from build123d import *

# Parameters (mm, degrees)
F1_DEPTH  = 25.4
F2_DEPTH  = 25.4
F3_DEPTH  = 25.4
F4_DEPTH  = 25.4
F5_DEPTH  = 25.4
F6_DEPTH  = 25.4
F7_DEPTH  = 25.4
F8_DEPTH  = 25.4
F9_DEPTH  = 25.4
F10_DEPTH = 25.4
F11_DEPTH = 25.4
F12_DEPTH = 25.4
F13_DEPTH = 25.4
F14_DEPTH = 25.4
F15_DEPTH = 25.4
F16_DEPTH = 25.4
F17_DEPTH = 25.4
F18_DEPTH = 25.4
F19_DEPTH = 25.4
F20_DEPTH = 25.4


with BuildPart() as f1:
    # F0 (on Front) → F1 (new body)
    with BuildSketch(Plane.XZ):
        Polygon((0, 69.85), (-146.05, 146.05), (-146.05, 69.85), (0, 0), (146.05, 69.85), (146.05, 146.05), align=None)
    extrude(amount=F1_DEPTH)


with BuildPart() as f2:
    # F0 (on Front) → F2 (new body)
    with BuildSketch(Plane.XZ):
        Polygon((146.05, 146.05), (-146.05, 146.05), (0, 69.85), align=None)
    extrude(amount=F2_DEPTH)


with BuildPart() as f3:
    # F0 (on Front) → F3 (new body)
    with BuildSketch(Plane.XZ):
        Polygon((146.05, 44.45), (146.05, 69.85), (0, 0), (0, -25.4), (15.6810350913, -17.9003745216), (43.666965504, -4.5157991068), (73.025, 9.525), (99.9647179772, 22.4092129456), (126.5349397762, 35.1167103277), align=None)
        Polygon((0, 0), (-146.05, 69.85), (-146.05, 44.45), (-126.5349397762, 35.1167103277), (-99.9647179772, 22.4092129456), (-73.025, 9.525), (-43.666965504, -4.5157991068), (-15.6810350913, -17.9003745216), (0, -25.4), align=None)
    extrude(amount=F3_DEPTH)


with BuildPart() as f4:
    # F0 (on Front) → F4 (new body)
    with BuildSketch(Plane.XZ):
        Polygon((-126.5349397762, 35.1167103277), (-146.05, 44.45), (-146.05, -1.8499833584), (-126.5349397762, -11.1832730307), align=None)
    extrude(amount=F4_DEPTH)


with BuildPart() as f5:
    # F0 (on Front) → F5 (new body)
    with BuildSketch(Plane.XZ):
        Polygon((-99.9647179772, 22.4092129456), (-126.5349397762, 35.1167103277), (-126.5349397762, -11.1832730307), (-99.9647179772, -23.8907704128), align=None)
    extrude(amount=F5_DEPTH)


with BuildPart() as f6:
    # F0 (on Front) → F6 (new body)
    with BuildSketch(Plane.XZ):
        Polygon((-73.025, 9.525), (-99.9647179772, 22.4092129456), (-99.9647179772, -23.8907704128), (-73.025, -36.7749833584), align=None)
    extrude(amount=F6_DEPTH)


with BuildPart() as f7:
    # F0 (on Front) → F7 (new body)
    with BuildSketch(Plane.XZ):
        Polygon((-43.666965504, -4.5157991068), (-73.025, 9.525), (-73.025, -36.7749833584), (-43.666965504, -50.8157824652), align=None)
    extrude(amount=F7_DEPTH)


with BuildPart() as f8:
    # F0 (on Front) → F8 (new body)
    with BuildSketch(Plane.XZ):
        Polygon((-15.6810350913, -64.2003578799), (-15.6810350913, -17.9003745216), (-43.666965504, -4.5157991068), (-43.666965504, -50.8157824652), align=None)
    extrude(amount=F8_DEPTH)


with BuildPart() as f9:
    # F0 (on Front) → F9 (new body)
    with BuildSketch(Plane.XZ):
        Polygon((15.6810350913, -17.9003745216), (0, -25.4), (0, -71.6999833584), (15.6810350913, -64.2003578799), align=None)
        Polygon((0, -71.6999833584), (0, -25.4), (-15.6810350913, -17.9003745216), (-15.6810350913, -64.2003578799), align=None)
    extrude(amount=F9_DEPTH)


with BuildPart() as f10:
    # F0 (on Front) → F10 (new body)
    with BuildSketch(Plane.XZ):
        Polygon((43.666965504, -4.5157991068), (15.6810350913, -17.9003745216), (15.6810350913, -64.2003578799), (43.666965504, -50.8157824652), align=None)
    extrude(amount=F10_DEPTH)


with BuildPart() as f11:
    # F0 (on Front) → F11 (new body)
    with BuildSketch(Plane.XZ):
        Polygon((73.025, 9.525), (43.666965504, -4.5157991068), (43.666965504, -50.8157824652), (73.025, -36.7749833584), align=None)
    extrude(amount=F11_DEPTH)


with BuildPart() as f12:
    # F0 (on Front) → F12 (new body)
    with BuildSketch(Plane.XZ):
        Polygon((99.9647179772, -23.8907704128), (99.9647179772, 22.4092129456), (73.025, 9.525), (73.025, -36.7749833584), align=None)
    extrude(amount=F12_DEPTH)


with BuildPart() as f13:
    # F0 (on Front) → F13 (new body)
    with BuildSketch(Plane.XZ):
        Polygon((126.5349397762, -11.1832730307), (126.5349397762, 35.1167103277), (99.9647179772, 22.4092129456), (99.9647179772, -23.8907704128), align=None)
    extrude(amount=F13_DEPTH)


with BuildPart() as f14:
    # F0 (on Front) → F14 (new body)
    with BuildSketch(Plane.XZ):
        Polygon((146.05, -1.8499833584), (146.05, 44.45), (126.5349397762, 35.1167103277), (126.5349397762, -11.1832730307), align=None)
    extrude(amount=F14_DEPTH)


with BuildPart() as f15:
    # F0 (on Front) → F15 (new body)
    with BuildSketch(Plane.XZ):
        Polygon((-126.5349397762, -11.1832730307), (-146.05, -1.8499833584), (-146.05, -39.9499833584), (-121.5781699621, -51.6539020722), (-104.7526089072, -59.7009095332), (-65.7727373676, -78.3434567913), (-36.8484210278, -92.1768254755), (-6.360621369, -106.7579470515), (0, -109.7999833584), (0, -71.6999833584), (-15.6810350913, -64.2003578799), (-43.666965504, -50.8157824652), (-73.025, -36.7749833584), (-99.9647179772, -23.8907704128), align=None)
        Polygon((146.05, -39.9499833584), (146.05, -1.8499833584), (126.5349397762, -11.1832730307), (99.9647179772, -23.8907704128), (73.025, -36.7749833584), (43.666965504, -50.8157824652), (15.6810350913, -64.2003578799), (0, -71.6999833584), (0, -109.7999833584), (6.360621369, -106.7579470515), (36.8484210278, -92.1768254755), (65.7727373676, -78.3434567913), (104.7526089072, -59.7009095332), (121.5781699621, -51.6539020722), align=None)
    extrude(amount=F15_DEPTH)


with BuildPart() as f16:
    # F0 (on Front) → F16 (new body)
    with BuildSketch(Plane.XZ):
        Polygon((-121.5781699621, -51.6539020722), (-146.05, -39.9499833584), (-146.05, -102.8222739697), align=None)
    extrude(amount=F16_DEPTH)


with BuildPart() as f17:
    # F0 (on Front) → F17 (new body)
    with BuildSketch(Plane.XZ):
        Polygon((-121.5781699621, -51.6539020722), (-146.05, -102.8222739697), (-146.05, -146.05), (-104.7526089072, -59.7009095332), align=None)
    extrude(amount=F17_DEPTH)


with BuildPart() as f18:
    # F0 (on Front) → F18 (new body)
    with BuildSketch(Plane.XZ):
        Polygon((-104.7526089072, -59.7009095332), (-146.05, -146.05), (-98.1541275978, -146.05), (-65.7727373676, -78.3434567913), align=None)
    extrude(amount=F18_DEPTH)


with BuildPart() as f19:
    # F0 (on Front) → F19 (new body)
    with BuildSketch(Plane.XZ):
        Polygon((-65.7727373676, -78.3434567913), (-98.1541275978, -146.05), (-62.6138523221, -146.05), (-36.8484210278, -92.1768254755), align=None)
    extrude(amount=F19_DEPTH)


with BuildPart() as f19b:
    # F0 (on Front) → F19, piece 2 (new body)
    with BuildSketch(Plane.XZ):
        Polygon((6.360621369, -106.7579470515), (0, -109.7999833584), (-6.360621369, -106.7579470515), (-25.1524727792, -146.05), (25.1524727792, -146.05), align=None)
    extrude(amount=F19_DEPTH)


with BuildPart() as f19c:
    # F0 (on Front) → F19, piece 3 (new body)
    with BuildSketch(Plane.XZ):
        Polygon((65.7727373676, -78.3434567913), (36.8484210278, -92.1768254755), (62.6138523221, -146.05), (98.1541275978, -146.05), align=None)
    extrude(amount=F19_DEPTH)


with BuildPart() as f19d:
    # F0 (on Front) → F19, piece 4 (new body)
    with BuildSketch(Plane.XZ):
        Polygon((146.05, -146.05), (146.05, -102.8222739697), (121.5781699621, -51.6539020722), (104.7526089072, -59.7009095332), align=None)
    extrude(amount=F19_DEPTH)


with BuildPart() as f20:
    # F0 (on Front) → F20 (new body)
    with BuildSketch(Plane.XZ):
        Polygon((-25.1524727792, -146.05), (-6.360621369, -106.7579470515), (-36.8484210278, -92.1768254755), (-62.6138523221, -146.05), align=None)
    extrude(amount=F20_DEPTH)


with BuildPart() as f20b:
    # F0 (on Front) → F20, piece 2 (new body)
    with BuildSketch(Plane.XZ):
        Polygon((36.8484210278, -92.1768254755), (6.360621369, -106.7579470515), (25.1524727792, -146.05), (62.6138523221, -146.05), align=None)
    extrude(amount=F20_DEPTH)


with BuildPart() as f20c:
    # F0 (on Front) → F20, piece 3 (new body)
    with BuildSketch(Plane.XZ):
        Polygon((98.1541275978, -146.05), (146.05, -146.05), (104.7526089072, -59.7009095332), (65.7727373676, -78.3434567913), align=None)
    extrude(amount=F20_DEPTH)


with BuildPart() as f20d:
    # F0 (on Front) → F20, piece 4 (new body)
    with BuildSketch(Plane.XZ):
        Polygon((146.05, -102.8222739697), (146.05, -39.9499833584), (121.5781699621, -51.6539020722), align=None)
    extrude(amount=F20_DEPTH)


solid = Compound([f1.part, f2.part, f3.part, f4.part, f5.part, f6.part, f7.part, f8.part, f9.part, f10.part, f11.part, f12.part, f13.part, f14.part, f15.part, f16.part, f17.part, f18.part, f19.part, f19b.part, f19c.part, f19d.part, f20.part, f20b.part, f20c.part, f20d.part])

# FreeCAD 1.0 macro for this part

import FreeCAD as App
import Part
import Sketcher

V = App.Vector
Q = App.Units.Quantity

doc = App.newDocument("Part")
body = doc.addObject("PartDesign::Body", "Body")

# Sketch on XZ plane
sketch1 = body.newObject("Sketcher::SketchObject", "Sketch")
sketch1.AttachmentSupport = (doc.getObject("XZ_Plane"), [""])
sketch1.MapMode = "FlatFace"
sketch1.addGeometry([
    Part.LineSegment(V(0, 70, 0), V(-146, 146, 0)),  # 0
    Part.LineSegment(V(-146, 146, 0), V(-146, 70, 0)),  # 1
    Part.LineSegment(V(-146, 70, 0), V(0, 0, 0)),  # 2
    Part.LineSegment(V(0, 0, 0), V(146, 70, 0)),  # 3
    Part.LineSegment(V(146, 70, 0), V(146, 146, 0)),  # 4
    Part.LineSegment(V(146, 146, 0), V(0, 70, 0)),  # 5
], False)
sketch1.addConstraint([
    Sketcher.Constraint("Coincident", 0, 2, 1, 1),
    Sketcher.Constraint("Coincident", 1, 2, 2, 1),
    Sketcher.Constraint("Coincident", 2, 2, 3, 1),
    Sketcher.Constraint("Coincident", 3, 2, 4, 1),
    Sketcher.Constraint("Coincident", 4, 2, 5, 1),
    Sketcher.Constraint("Coincident", 5, 2, 0, 1),
    Sketcher.Constraint("Vertical", 1),
    Sketcher.Constraint("Vertical", 4),
    Sketcher.Constraint("Coincident", 2, 2, -1, 1),
    Sketcher.Constraint("Symmetric", 1, 2, 3, 2, -2),
    Sketcher.Constraint("PointOnObject", 5, 2, -2),
    Sketcher.Constraint("Horizontal", 0, 2, 4, 2),
    Sketcher.Constraint("Horizontal", 3, 2, 5, 2),
    Sketcher.Constraint("DistanceY", 1, 2, 1, 1, Q("3 in")),
    Sketcher.Constraint("DistanceX", 1, 2, 3, 2, Q("11.5 in")),
    Sketcher.Constraint("DistanceY", -1, 1, 0, 2, Q("5.75 in")),
])
pad1 = body.newObject("PartDesign::Pad", "Pad")
pad1.Profile = sketch1
pad1.Length = Q("1 in")
body2 = doc.addObject("PartDesign::Body", "Body001")

# Sketch on XZ plane
sketch2 = body2.newObject("Sketcher::SketchObject", "Sketch001")
sketch2.AttachmentSupport = (doc.getObject("XZ_Plane001"), [""])
sketch2.MapMode = "FlatFace"
sketch2.addGeometry([
    Part.LineSegment(V(146, 146, 0), V(-146, 146, 0)),
    Part.LineSegment(V(-146, 146, 0), V(0, 70, 0)),
    Part.LineSegment(V(0, 70, 0), V(146, 146, 0)),
], False)
sketch2.addConstraint([
    Sketcher.Constraint("Coincident", 0, 2, 1, 1),
    Sketcher.Constraint("Coincident", 1, 2, 2, 1),
    Sketcher.Constraint("Coincident", 2, 2, 0, 1),
    Sketcher.Constraint("Horizontal", 0),
    Sketcher.Constraint("PointOnObject", 1, 2, -2),
    Sketcher.Constraint("Equal", 1, 2),
    Sketcher.Constraint("DistanceX", 0, 2, 0, 1, Q("11.5 in")),
    Sketcher.Constraint("DistanceY", 1, 2, 0, 2, Q("3 in")),
    Sketcher.Constraint("DistanceY", -1, 1, 0, 2, Q("5.75 in")),
])
pad2 = body2.newObject("PartDesign::Pad", "Pad001")
pad2.Profile = sketch2
pad2.Length = Q("1 in")
body3 = doc.addObject("PartDesign::Body", "Body002")

# Sketch on XZ plane
sketch3 = body3.newObject("Sketcher::SketchObject", "Sketch002")
sketch3.AttachmentSupport = (doc.getObject("XZ_Plane002"), [""])
sketch3.MapMode = "FlatFace"
sketch3.addGeometry([
    Part.LineSegment(V(146, 44, 0), V(146, 70, 0)),  # 0
    Part.LineSegment(V(146, 70, 0), V(0, 0, 0)),  # 1
    Part.LineSegment(V(0, 0, 0), V(-146, 70, 0)),  # 2
    Part.LineSegment(V(-146, 70, 0), V(-146, 44, 0)),  # 3
    Part.LineSegment(V(-146, 44, 0), V(-127, 35, 0)),  # 4
    Part.LineSegment(V(-127, 35, 0), V(-73, 10, 0)),  # 5
    Part.LineSegment(V(-73, 10, 0), V(-16, -18, 0)),  # 6
    Part.LineSegment(V(-16, -18, 0), V(0, -25, 0)),  # 7
    Part.LineSegment(V(0, -25, 0), V(16, -18, 0)),  # 8
    Part.LineSegment(V(16, -18, 0), V(73, 10, 0)),  # 9
    Part.LineSegment(V(73, 10, 0), V(127, 35, 0)),  # 10
    Part.LineSegment(V(127, 35, 0), V(146, 44, 0)),  # 11
], False)
sketch3.addConstraint([
    Sketcher.Constraint("Coincident", 0, 2, 1, 1),
    Sketcher.Constraint("Coincident", 1, 2, 2, 1),
    Sketcher.Constraint("Coincident", 2, 2, 3, 1),
    Sketcher.Constraint("Coincident", 3, 2, 4, 1),
    Sketcher.Constraint("Coincident", 4, 2, 5, 1),
    Sketcher.Constraint("Coincident", 5, 2, 6, 1),
    Sketcher.Constraint("Coincident", 6, 2, 7, 1),
    Sketcher.Constraint("Coincident", 7, 2, 8, 1),
    Sketcher.Constraint("Coincident", 8, 2, 9, 1),
    Sketcher.Constraint("Coincident", 9, 2, 10, 1),
    Sketcher.Constraint("Coincident", 10, 2, 11, 1),
    Sketcher.Constraint("Coincident", 11, 2, 0, 1),
    Sketcher.Constraint("Vertical", 0),
    Sketcher.Constraint("Vertical", 3),
    Sketcher.Constraint("Coincident", 1, 2, -1, 1),
    Sketcher.Constraint("Symmetric", 0, 2, 2, 2, -2),
    Sketcher.Constraint("Symmetric", 6, 2, 8, 2, -2),
    Sketcher.Constraint("Symmetric", 5, 2, 9, 2, -2),
    Sketcher.Constraint("Symmetric", 4, 2, 10, 2, -2),
    Sketcher.Constraint("PointOnObject", 7, 2, -2),
    Sketcher.Constraint("Parallel", 2, 4),
    Sketcher.Constraint("Parallel", 4, 5),
    Sketcher.Constraint("Parallel", 5, 6),
    Sketcher.Constraint("Parallel", 6, 7),
    Sketcher.Constraint("Parallel", 10, 11),
    Sketcher.Constraint("DistanceY", 0, 1, 0, 2, Q("1 in")),
    Sketcher.Constraint("DistanceX", 2, 2, 0, 2, Q("11.5 in")),
    Sketcher.Constraint("DistanceY", -1, 1, 0, 2, Q("2.75 in")),
    Sketcher.Constraint("DistanceX", 5, 2, -1, 1, Q("2.875 in")),
    Sketcher.Constraint("Distance", 5, Q("59.314832 mm")),
    Sketcher.Constraint("Distance", 6, Q("63.564782 mm")),
])
pad3 = body3.newObject("PartDesign::Pad", "Pad002")
pad3.Profile = sketch3
pad3.Length = Q("1 in")
body4 = doc.addObject("PartDesign::Body", "Body003")

# Sketch on XZ plane
sketch4 = body4.newObject("Sketcher::SketchObject", "Sketch003")
sketch4.AttachmentSupport = (doc.getObject("XZ_Plane003"), [""])
sketch4.MapMode = "FlatFace"
sketch4.addGeometry([
    Part.LineSegment(V(-127, 35, 0), V(-146, 44, 0)),
    Part.LineSegment(V(-146, 44, 0), V(-146, -2, 0)),
    Part.LineSegment(V(-146, -2, 0), V(-127, -11, 0)),
    Part.LineSegment(V(-127, -11, 0), V(-127, 35, 0)),
], False)
sketch4.addConstraint([
    Sketcher.Constraint("Coincident", 0, 2, 1, 1),
    Sketcher.Constraint("Coincident", 1, 2, 2, 1),
    Sketcher.Constraint("Coincident", 2, 2, 3, 1),
    Sketcher.Constraint("Coincident", 3, 2, 0, 1),
    Sketcher.Constraint("Vertical", 1),
    Sketcher.Constraint("Vertical", 3),
    Sketcher.Constraint("Parallel", 0, 2),
    Sketcher.Constraint("DistanceX", 0, 2, -1, 1, Q("5.75 in")),
    Sketcher.Constraint("DistanceY", -1, 1, 0, 2, Q("1.75 in")),
    Sketcher.Constraint("DistanceY", 1, 2, 1, 1, Q("46.299983 mm")),
    Sketcher.Constraint("DistanceX", 2, 2, -1, 1, Q("126.53494 mm")),
    Sketcher.Constraint("DistanceY", -1, 1, 3, 2, Q("35.11671 mm")),
])
pad4 = body4.newObject("PartDesign::Pad", "Pad003")
pad4.Profile = sketch4
pad4.Length = Q("1 in")
body5 = doc.addObject("PartDesign::Body", "Body004")

# Sketch on XZ plane
sketch5 = body5.newObject("Sketcher::SketchObject", "Sketch004")
sketch5.AttachmentSupport = (doc.getObject("XZ_Plane004"), [""])
sketch5.MapMode = "FlatFace"
sketch5.addGeometry([
    Part.LineSegment(V(-100, 22, 0), V(-127, 35, 0)),
    Part.LineSegment(V(-127, 35, 0), V(-127, -11, 0)),
    Part.LineSegment(V(-127, -11, 0), V(-100, -24, 0)),
    Part.LineSegment(V(-100, -24, 0), V(-100, 22, 0)),
], False)
sketch5.addConstraint([
    Sketcher.Constraint("Coincident", 0, 2, 1, 1),
    Sketcher.Constraint("Coincident", 1, 2, 2, 1),
    Sketcher.Constraint("Coincident", 2, 2, 3, 1),
    Sketcher.Constraint("Coincident", 3, 2, 0, 1),
    Sketcher.Constraint("Vertical", 1),
    Sketcher.Constraint("Vertical", 3),
    Sketcher.Constraint("Parallel", 0, 2),
    Sketcher.Constraint("DistanceY", 1, 2, 1, 1, Q("46.299983 mm")),
    Sketcher.Constraint("DistanceX", 0, 2, -1, 1, Q("126.53494 mm")),
    Sketcher.Constraint("DistanceY", -1, 1, 0, 2, Q("35.11671 mm")),
    Sketcher.Constraint("DistanceY", 2, 2, -1, 1, Q("23.89077 mm")),
    Sketcher.Constraint("DistanceX", 1, 2, 2, 2, Q("26.570222 mm")),
])
pad5 = body5.newObject("PartDesign::Pad", "Pad004")
pad5.Profile = sketch5
pad5.Length = Q("1 in")
body6 = doc.addObject("PartDesign::Body", "Body005")

# Sketch on XZ plane
sketch6 = body6.newObject("Sketcher::SketchObject", "Sketch005")
sketch6.AttachmentSupport = (doc.getObject("XZ_Plane005"), [""])
sketch6.MapMode = "FlatFace"
sketch6.addGeometry([
    Part.LineSegment(V(-73, 10, 0), V(-100, 22, 0)),
    Part.LineSegment(V(-100, 22, 0), V(-100, -24, 0)),
    Part.LineSegment(V(-100, -24, 0), V(-73, -37, 0)),
    Part.LineSegment(V(-73, -37, 0), V(-73, 10, 0)),
], False)
sketch6.addConstraint([
    Sketcher.Constraint("Coincident", 0, 2, 1, 1),
    Sketcher.Constraint("Coincident", 1, 2, 2, 1),
    Sketcher.Constraint("Coincident", 2, 2, 3, 1),
    Sketcher.Constraint("Coincident", 3, 2, 0, 1),
    Sketcher.Constraint("Vertical", 1),
    Sketcher.Constraint("Vertical", 3),
    Sketcher.Constraint("Parallel", 0, 2),
    Sketcher.Constraint("DistanceX", 2, 2, -1, 1, Q("2.875 in")),
    Sketcher.Constraint("DistanceY", -1, 1, 3, 2, Q("0.375 in")),
    Sketcher.Constraint("DistanceY", 1, 2, 1, 1, Q("46.299983 mm")),
    Sketcher.Constraint("DistanceY", 1, 2, -1, 1, Q("23.89077 mm")),
    Sketcher.Constraint("Distance", 0, Q("29.862206 mm")),
])
pad6 = body6.newObject("PartDesign::Pad", "Pad005")
pad6.Profile = sketch6
pad6.Length = Q("1 in")
body7 = doc.addObject("PartDesign::Body", "Body006")

# Sketch on XZ plane
sketch7 = body7.newObject("Sketcher::SketchObject", "Sketch006")
sketch7.AttachmentSupport = (doc.getObject("XZ_Plane006"), [""])
sketch7.MapMode = "FlatFace"
sketch7.addGeometry([
    Part.LineSegment(V(-44, -5, 0), V(-73, 10, 0)),
    Part.LineSegment(V(-73, 10, 0), V(-73, -37, 0)),
    Part.LineSegment(V(-73, -37, 0), V(-44, -51, 0)),
    Part.LineSegment(V(-44, -51, 0), V(-44, -5, 0)),
], False)
sketch7.addConstraint([
    Sketcher.Constraint("Coincident", 0, 2, 1, 1),
    Sketcher.Constraint("Coincident", 1, 2, 2, 1),
    Sketcher.Constraint("Coincident", 2, 2, 3, 1),
    Sketcher.Constraint("Coincident", 3, 2, 0, 1),
    Sketcher.Constraint("Vertical", 1),
    Sketcher.Constraint("Vertical", 3),
    Sketcher.Constraint("Parallel", 0, 2),
    Sketcher.Constraint("DistanceX", 0, 2, -1, 1, Q("2.875 in")),
    Sketcher.Constraint("DistanceY", -1, 1, 0, 2, Q("0.375 in")),
    Sketcher.Constraint("DistanceY", 3, 2, -1, 1, Q("4.515799 mm")),
    Sketcher.Constraint("DistanceY", 1, 2, 1, 1, Q("46.299983 mm")),
    Sketcher.Constraint("Distance", 0, Q("32.542868 mm")),
])
pad7 = body7.newObject("PartDesign::Pad", "Pad006")
pad7.Profile = sketch7
pad7.Length = Q("1 in")
body8 = doc.addObject("PartDesign::Body", "Body007")

# Sketch on XZ plane
sketch8 = body8.newObject("Sketcher::SketchObject", "Sketch007")
sketch8.AttachmentSupport = (doc.getObject("XZ_Plane007"), [""])
sketch8.MapMode = "FlatFace"
sketch8.addGeometry([
    Part.LineSegment(V(-16, -64, 0), V(-16, -18, 0)),
    Part.LineSegment(V(-16, -18, 0), V(-44, -5, 0)),
    Part.LineSegment(V(-44, -5, 0), V(-44, -51, 0)),
    Part.LineSegment(V(-44, -51, 0), V(-16, -64, 0)),
], False)
sketch8.addConstraint([
    Sketcher.Constraint("Coincident", 0, 2, 1, 1),
    Sketcher.Constraint("Coincident", 1, 2, 2, 1),
    Sketcher.Constraint("Coincident", 2, 2, 3, 1),
    Sketcher.Constraint("Coincident", 3, 2, 0, 1),
    Sketcher.Constraint("Vertical", 0),
    Sketcher.Constraint("Vertical", 2),
    Sketcher.Constraint("Parallel", 1, 3),
    Sketcher.Constraint("DistanceY", 1, 2, -1, 1, Q("4.515799 mm")),
    Sketcher.Constraint("DistanceY", 0, 1, 0, 2, Q("46.299983 mm")),
    Sketcher.Constraint("DistanceX", 1, 2, 0, 2, Q("27.98593 mm")),
    Sketcher.Constraint("DistanceY", 3, 2, 1, 2, Q("59.684559 mm")),
    Sketcher.Constraint("DistanceX", 0, 2, -1, 1, Q("15.681035 mm")),
])
pad8 = body8.newObject("PartDesign::Pad", "Pad007")
pad8.Profile = sketch8
pad8.Length = Q("1 in")
body9 = doc.addObject("PartDesign::Body", "Body008")

# Sketch on XZ plane
sketch9 = body9.newObject("Sketcher::SketchObject", "Sketch008")
sketch9.AttachmentSupport = (doc.getObject("XZ_Plane008"), [""])
sketch9.MapMode = "FlatFace"
sketch9.addGeometry([
    Part.LineSegment(V(16, -18, 0), V(0, -25, 0)),  # 0
    Part.LineSegment(V(0, -25, 0), V(-16, -18, 0)),  # 1
    Part.LineSegment(V(-16, -18, 0), V(-16, -64, 0)),  # 2
    Part.LineSegment(V(-16, -64, 0), V(0, -72, 0)),  # 3
    Part.LineSegment(V(0, -72, 0), V(16, -64, 0)),  # 4
    Part.LineSegment(V(16, -64, 0), V(16, -18, 0)),  # 5
], False)
sketch9.addConstraint([
    Sketcher.Constraint("Coincident", 0, 2, 1, 1),
    Sketcher.Constraint("Coincident", 1, 2, 2, 1),
    Sketcher.Constraint("Coincident", 2, 2, 3, 1),
    Sketcher.Constraint("Coincident", 3, 2, 4, 1),
    Sketcher.Constraint("Coincident", 4, 2, 5, 1),
    Sketcher.Constraint("Coincident", 5, 2, 0, 1),
    Sketcher.Constraint("Vertical", 2),
    Sketcher.Constraint("Vertical", 5),
    Sketcher.Constraint("Symmetric", 2, 2, 4, 2, -2),
    Sketcher.Constraint("PointOnObject", 0, 2, -2),
    Sketcher.Constraint("PointOnObject", 3, 2, -2),
    Sketcher.Constraint("Parallel", 1, 3),
    Sketcher.Constraint("Parallel", 0, 4),
    Sketcher.Constraint("DistanceY", 0, 2, -1, 1, Q("1 in")),
    Sketcher.Constraint("DistanceY", 2, 2, 2, 1, Q("46.299983 mm")),
    Sketcher.Constraint("DistanceY", 3, 2, 1, 2, Q("53.799609 mm")),
    Sketcher.Constraint("DistanceX", 2, 2, 4, 2, Q("31.36207 mm")),
])
pad9 = body9.newObject("PartDesign::Pad", "Pad008")
pad9.Profile = sketch9
pad9.Length = Q("1 in")
body10 = doc.addObject("PartDesign::Body", "Body009")

# Sketch on XZ plane
sketch10 = body10.newObject("Sketcher::SketchObject", "Sketch009")
sketch10.AttachmentSupport = (doc.getObject("XZ_Plane009"), [""])
sketch10.MapMode = "FlatFace"
sketch10.addGeometry([
    Part.LineSegment(V(44, -5, 0), V(16, -18, 0)),
    Part.LineSegment(V(16, -18, 0), V(16, -64, 0)),
    Part.LineSegment(V(16, -64, 0), V(44, -51, 0)),
    Part.LineSegment(V(44, -51, 0), V(44, -5, 0)),
], False)
sketch10.addConstraint([
    Sketcher.Constraint("Coincident", 0, 2, 1, 1),
    Sketcher.Constraint("Coincident", 1, 2, 2, 1),
    Sketcher.Constraint("Coincident", 2, 2, 3, 1),
    Sketcher.Constraint("Coincident", 3, 2, 0, 1),
    Sketcher.Constraint("Vertical", 1),
    Sketcher.Constraint("Vertical", 3),
    Sketcher.Constraint("Parallel", 0, 2),
    Sketcher.Constraint("DistanceY", 3, 2, -1, 1, Q("4.515799 mm")),
    Sketcher.Constraint("DistanceY", 1, 2, 1, 1, Q("46.299983 mm")),
    Sketcher.Constraint("DistanceX", 1, 2, 2, 2, Q("27.98593 mm")),
    Sketcher.Constraint("DistanceY", 1, 2, 3, 2, Q("59.684559 mm")),
    Sketcher.Constraint("DistanceX", -1, 1, 0, 2, Q("15.681035 mm")),
])
pad10 = body10.newObject("PartDesign::Pad", "Pad009")
pad10.Profile = sketch10
pad10.Length = Q("1 in")
body11 = doc.addObject("PartDesign::Body", "Body010")

# Sketch on XZ plane
sketch11 = body11.newObject("Sketcher::SketchObject", "Sketch010")
sketch11.AttachmentSupport = (doc.getObject("XZ_Plane010"), [""])
sketch11.MapMode = "FlatFace"
sketch11.addGeometry([
    Part.LineSegment(V(73, 10, 0), V(44, -5, 0)),
    Part.LineSegment(V(44, -5, 0), V(44, -51, 0)),
    Part.LineSegment(V(44, -51, 0), V(73, -37, 0)),
    Part.LineSegment(V(73, -37, 0), V(73, 10, 0)),
], False)
sketch11.addConstraint([
    Sketcher.Constraint("Coincident", 0, 2, 1, 1),
    Sketcher.Constraint("Coincident", 1, 2, 2, 1),
    Sketcher.Constraint("Coincident", 2, 2, 3, 1),
    Sketcher.Constraint("Coincident", 3, 2, 0, 1),
    Sketcher.Constraint("Vertical", 1),
    Sketcher.Constraint("Vertical", 3),
    Sketcher.Constraint("Parallel", 0, 2),
    Sketcher.Constraint("DistanceX", -1, 1, 2, 2, Q("2.875 in")),
    Sketcher.Constraint("DistanceY", -1, 1, 3, 2, Q("0.375 in")),
    Sketcher.Constraint("DistanceY", 0, 2, -1, 1, Q("4.515799 mm")),
    Sketcher.Constraint("DistanceY", 1, 2, 1, 1, Q("46.299983 mm")),
    Sketcher.Constraint("Distance", 0, Q("32.542868 mm")),
])
pad11 = body11.newObject("PartDesign::Pad", "Pad010")
pad11.Profile = sketch11
pad11.Length = Q("1 in")
body12 = doc.addObject("PartDesign::Body", "Body011")

# Sketch on XZ plane
sketch12 = body12.newObject("Sketcher::SketchObject", "Sketch011")
sketch12.AttachmentSupport = (doc.getObject("XZ_Plane011"), [""])
sketch12.MapMode = "FlatFace"
sketch12.addGeometry([
    Part.LineSegment(V(100, -24, 0), V(100, 22, 0)),
    Part.LineSegment(V(100, 22, 0), V(73, 10, 0)),
    Part.LineSegment(V(73, 10, 0), V(73, -37, 0)),
    Part.LineSegment(V(73, -37, 0), V(100, -24, 0)),
], False)
sketch12.addConstraint([
    Sketcher.Constraint("Coincident", 0, 2, 1, 1),
    Sketcher.Constraint("Coincident", 1, 2, 2, 1),
    Sketcher.Constraint("Coincident", 2, 2, 3, 1),
    Sketcher.Constraint("Coincident", 3, 2, 0, 1),
    Sketcher.Constraint("Vertical", 0),
    Sketcher.Constraint("Vertical", 2),
    Sketcher.Constraint("Parallel", 1, 3),
    Sketcher.Constraint("DistanceX", -1, 1, 1, 2, Q("2.875 in")),
    Sketcher.Constraint("DistanceY", -1, 1, 1, 2, Q("0.375 in")),
    Sketcher.Constraint("DistanceY", 0, 1, 0, 2, Q("46.299983 mm")),
    Sketcher.Constraint("DistanceY", 3, 2, -1, 1, Q("23.89077 mm")),
    Sketcher.Constraint("Distance", 1, Q("29.862206 mm")),
])
pad12 = body12.newObject("PartDesign::Pad", "Pad011")
pad12.Profile = sketch12
pad12.Length = Q("1 in")
body13 = doc.addObject("PartDesign::Body", "Body012")

# Sketch on XZ plane
sketch13 = body13.newObject("Sketcher::SketchObject", "Sketch012")
sketch13.AttachmentSupport = (doc.getObject("XZ_Plane012"), [""])
sketch13.MapMode = "FlatFace"
sketch13.addGeometry([
    Part.LineSegment(V(127, -11, 0), V(127, 35, 0)),
    Part.LineSegment(V(127, 35, 0), V(100, 22, 0)),
    Part.LineSegment(V(100, 22, 0), V(100, -24, 0)),
    Part.LineSegment(V(100, -24, 0), V(127, -11, 0)),
], False)
sketch13.addConstraint([
    Sketcher.Constraint("Coincident", 0, 2, 1, 1),
    Sketcher.Constraint("Coincident", 1, 2, 2, 1),
    Sketcher.Constraint("Coincident", 2, 2, 3, 1),
    Sketcher.Constraint("Coincident", 3, 2, 0, 1),
    Sketcher.Constraint("Vertical", 0),
    Sketcher.Constraint("Vertical", 2),
    Sketcher.Constraint("Parallel", 1, 3),
    Sketcher.Constraint("DistanceY", 0, 1, 0, 2, Q("46.299983 mm")),
    Sketcher.Constraint("DistanceX", -1, 1, 0, 2, Q("126.53494 mm")),
    Sketcher.Constraint("DistanceY", -1, 1, 0, 2, Q("35.11671 mm")),
    Sketcher.Constraint("DistanceY", 2, 2, -1, 1, Q("23.89077 mm")),
    Sketcher.Constraint("DistanceX", 1, 2, 0, 2, Q("26.570222 mm")),
])
pad13 = body13.newObject("PartDesign::Pad", "Pad012")
pad13.Profile = sketch13
pad13.Length = Q("1 in")
body14 = doc.addObject("PartDesign::Body", "Body013")

# Sketch on XZ plane
sketch14 = body14.newObject("Sketcher::SketchObject", "Sketch013")
sketch14.AttachmentSupport = (doc.getObject("XZ_Plane013"), [""])
sketch14.MapMode = "FlatFace"
sketch14.addGeometry([
    Part.LineSegment(V(146, -2, 0), V(146, 44, 0)),
    Part.LineSegment(V(146, 44, 0), V(127, 35, 0)),
    Part.LineSegment(V(127, 35, 0), V(127, -11, 0)),
    Part.LineSegment(V(127, -11, 0), V(146, -2, 0)),
], False)
sketch14.addConstraint([
    Sketcher.Constraint("Coincident", 0, 2, 1, 1),
    Sketcher.Constraint("Coincident", 1, 2, 2, 1),
    Sketcher.Constraint("Coincident", 2, 2, 3, 1),
    Sketcher.Constraint("Coincident", 3, 2, 0, 1),
    Sketcher.Constraint("Vertical", 0),
    Sketcher.Constraint("Vertical", 2),
    Sketcher.Constraint("Parallel", 1, 3),
    Sketcher.Constraint("DistanceX", -1, 1, 0, 2, Q("5.75 in")),
    Sketcher.Constraint("DistanceY", -1, 1, 0, 2, Q("1.75 in")),
    Sketcher.Constraint("DistanceY", 0, 1, 0, 2, Q("46.299983 mm")),
    Sketcher.Constraint("DistanceX", -1, 1, 1, 2, Q("126.53494 mm")),
    Sketcher.Constraint("DistanceY", -1, 1, 1, 2, Q("35.11671 mm")),
])
pad14 = body14.newObject("PartDesign::Pad", "Pad013")
pad14.Profile = sketch14
pad14.Length = Q("1 in")
body15 = doc.addObject("PartDesign::Body", "Body014")

# Sketch on XZ plane
sketch15 = body15.newObject("Sketcher::SketchObject", "Sketch014")
sketch15.AttachmentSupport = (doc.getObject("XZ_Plane014"), [""])
sketch15.MapMode = "FlatFace"
sketch15.addGeometry([
    Part.LineSegment(V(-127, -11, 0), V(-146, -2, 0)),  # 0
    Part.LineSegment(V(-146, -2, 0), V(-146, -40, 0)),  # 1
    Part.LineSegment(V(-146, -40, 0), V(-122, -52, 0)),  # 2
    Part.LineSegment(V(-122, -52, 0), V(-105, -60, 0)),  # 3
    Part.LineSegment(V(-105, -60, 0), V(-66, -78, 0)),  # 4
    Part.LineSegment(V(-66, -78, 0), V(-37, -92, 0)),  # 5
    Part.LineSegment(V(-37, -92, 0), V(-6, -107, 0)),  # 6
    Part.LineSegment(V(-6, -107, 0), V(0, -110, 0)),  # 7
    Part.LineSegment(V(0, -110, 0), V(6, -107, 0)),  # 8
    Part.LineSegment(V(6, -107, 0), V(37, -92, 0)),  # 9
    Part.LineSegment(V(37, -92, 0), V(66, -78, 0)),  # 10
    Part.LineSegment(V(66, -78, 0), V(105, -60, 0)),  # 11
    Part.LineSegment(V(105, -60, 0), V(122, -52, 0)),  # 12
    Part.LineSegment(V(122, -52, 0), V(146, -40, 0)),  # 13
    Part.LineSegment(V(146, -40, 0), V(146, -2, 0)),  # 14
    Part.LineSegment(V(146, -2, 0), V(127, -11, 0)),  # 15
    Part.LineSegment(V(127, -11, 0), V(73, -37, 0)),  # 16
    Part.LineSegment(V(73, -37, 0), V(44, -51, 0)),  # 17
    Part.LineSegment(V(44, -51, 0), V(16, -64, 0)),  # 18
    Part.LineSegment(V(16, -64, 0), V(0, -72, 0)),  # 19
    Part.LineSegment(V(0, -72, 0), V(-16, -64, 0)),  # 20
    Part.LineSegment(V(-16, -64, 0), V(-44, -51, 0)),  # 21
    Part.LineSegment(V(-44, -51, 0), V(-73, -37, 0)),  # 22
    Part.LineSegment(V(-73, -37, 0), V(-127, -11, 0)),  # 23
], False)
sketch15.addConstraint([
    Sketcher.Constraint("Coincident", 0, 2, 1, 1),
    Sketcher.Constraint("Coincident", 1, 2, 2, 1),
    Sketcher.Constraint("Coincident", 2, 2, 3, 1),
    Sketcher.Constraint("Coincident", 3, 2, 4, 1),
    Sketcher.Constraint("Coincident", 4, 2, 5, 1),
    Sketcher.Constraint("Coincident", 5, 2, 6, 1),
    Sketcher.Constraint("Coincident", 6, 2, 7, 1),
    Sketcher.Constraint("Coincident", 7, 2, 8, 1),
    Sketcher.Constraint("Coincident", 8, 2, 9, 1),
    Sketcher.Constraint("Coincident", 9, 2, 10, 1),
    Sketcher.Constraint("Coincident", 10, 2, 11, 1),
    Sketcher.Constraint("Coincident", 11, 2, 12, 1),
    Sketcher.Constraint("Coincident", 12, 2, 13, 1),
    Sketcher.Constraint("Coincident", 13, 2, 14, 1),
    Sketcher.Constraint("Coincident", 14, 2, 15, 1),
    Sketcher.Constraint("Coincident", 15, 2, 16, 1),
    Sketcher.Constraint("Coincident", 16, 2, 17, 1),
    Sketcher.Constraint("Coincident", 17, 2, 18, 1),
    Sketcher.Constraint("Coincident", 18, 2, 19, 1),
    Sketcher.Constraint("Coincident", 19, 2, 20, 1),
    Sketcher.Constraint("Coincident", 20, 2, 21, 1),
    Sketcher.Constraint("Coincident", 21, 2, 22, 1),
    Sketcher.Constraint("Coincident", 22, 2, 23, 1),
    Sketcher.Constraint("Coincident", 23, 2, 0, 1),
    Sketcher.Constraint("Vertical", 1),
    Sketcher.Constraint("Vertical", 14),
    Sketcher.Constraint("Symmetric", 6, 2, 8, 2, -2),
    Sketcher.Constraint("Symmetric", 5, 2, 9, 2, -2),
    Sketcher.Constraint("Symmetric", 4, 2, 10, 2, -2),
    Sketcher.Constraint("Symmetric", 3, 2, 11, 2, -2),
    Sketcher.Constraint("Symmetric", 2, 2, 12, 2, -2),
    Sketcher.Constraint("Symmetric", 1, 2, 13, 2, -2),
    Sketcher.Constraint("Symmetric", 18, 2, 20, 2, -2),
    Sketcher.Constraint("Symmetric", 17, 2, 21, 2, -2),
    Sketcher.Constraint("Symmetric", 16, 2, 22, 2, -2),
    Sketcher.Constraint("Symmetric", 15, 2, 23, 2, -2),
    Sketcher.Constraint("PointOnObject", 7, 2, -2),
    Sketcher.Constraint("PointOnObject", 19, 2, -2),
    Sketcher.Constraint("Parallel", 0, 2),
    Sketcher.Constraint("Parallel", 2, 3),
    Sketcher.Constraint("Parallel", 3, 4),
    Sketcher.Constraint("Parallel", 4, 5),
    Sketcher.Constraint("Parallel", 5, 6),
    Sketcher.Constraint("Parallel", 6, 7),
    Sketcher.Constraint("Parallel", 13, 15),
    Sketcher.Constraint("Parallel", 15, 16),
    Sketcher.Constraint("Parallel", 16, 17),
    Sketcher.Constraint("Parallel", 17, 18),
    Sketcher.Constraint("Parallel", 18, 19),
    Sketcher.Constraint("DistanceY", 1, 2, 1, 1, Q("1.5 in")),
    Sketcher.Constraint("DistanceX", 0, 2, -1, 1, Q("5.75 in")),
    Sketcher.Constraint("DistanceX", -1, 1, 16, 2, Q("2.875 in")),
    Sketcher.Constraint("Distance", 5, Q("32.062099 mm")),
    Sketcher.Constraint("DistanceX", 5, 2, 6, 2, Q("30.4878 mm")),
    Sketcher.Constraint("DistanceY", 17, 2, 16, 2, Q("14.040799 mm")),
    Sketcher.Constraint("DistanceY", 19, 2, 21, 2, Q("20.884201 mm")),
    Sketcher.Constraint("DistanceX", 21, 2, 18, 2, Q("59.348001 mm")),
    Sketcher.Constraint("Distance", 3, Q("18.65084 mm")),
    Sketcher.Constraint("Distance", 16, Q("59.314832 mm")),
    Sketcher.Constraint("DistanceX", 2, 2, -1, 1, Q("121.57817 mm")),
    Sketcher.Constraint("DistanceY", 3, 2, -1, 1, Q("59.70091 mm")),
    Sketcher.Constraint("DistanceX", 5, 2, -1, 1, Q("36.848421 mm")),
])
pad15 = body15.newObject("PartDesign::Pad", "Pad014")
pad15.Profile = sketch15
pad15.Length = Q("1 in")
body16 = doc.addObject("PartDesign::Body", "Body015")

# Sketch on XZ plane
sketch16 = body16.newObject("Sketcher::SketchObject", "Sketch015")
sketch16.AttachmentSupport = (doc.getObject("XZ_Plane015"), [""])
sketch16.MapMode = "FlatFace"
sketch16.addGeometry([
    Part.LineSegment(V(-122, -52, 0), V(-146, -40, 0)),
    Part.LineSegment(V(-146, -40, 0), V(-146, -103, 0)),
    Part.LineSegment(V(-146, -103, 0), V(-122, -52, 0)),
], False)
sketch16.addConstraint([
    Sketcher.Constraint("Coincident", 0, 2, 1, 1),
    Sketcher.Constraint("Coincident", 1, 2, 2, 1),
    Sketcher.Constraint("Coincident", 2, 2, 0, 1),
    Sketcher.Constraint("Vertical", 1),
    Sketcher.Constraint("Perpendicular", 0, 2),
    Sketcher.Constraint("DistanceX", 0, 2, -1, 1, Q("5.75 in")),
    Sketcher.Constraint("DistanceY", 1, 2, 1, 1, Q("62.872291 mm")),
    Sketcher.Constraint("DistanceX", 2, 2, -1, 1, Q("121.57817 mm")),
    Sketcher.Constraint("DistanceY", 0, 2, -1, 1, Q("39.949983 mm")),
])
pad16 = body16.newObject("PartDesign::Pad", "Pad015")
pad16.Profile = sketch16
pad16.Length = Q("1 in")
body17 = doc.addObject("PartDesign::Body", "Body016")

# Sketch on XZ plane
sketch17 = body17.newObject("Sketcher::SketchObject", "Sketch016")
sketch17.AttachmentSupport = (doc.getObject("XZ_Plane016"), [""])
sketch17.MapMode = "FlatFace"
sketch17.addGeometry([
    Part.LineSegment(V(-122, -52, 0), V(-146, -103, 0)),
    Part.LineSegment(V(-146, -103, 0), V(-146, -146, 0)),
    Part.LineSegment(V(-146, -146, 0), V(-105, -60, 0)),
    Part.LineSegment(V(-105, -60, 0), V(-122, -52, 0)),
], False)
sketch17.addConstraint([
    Sketcher.Constraint("Coincident", 0, 2, 1, 1),
    Sketcher.Constraint("Coincident", 1, 2, 2, 1),
    Sketcher.Constraint("Coincident", 2, 2, 3, 1),
    Sketcher.Constraint("Coincident", 3, 2, 0, 1),
    Sketcher.Constraint("Vertical", 1),
    Sketcher.Constraint("Parallel", 0, 2),
    Sketcher.Constraint("Perpendicular", 2, 3),
    Sketcher.Constraint("DistanceX", 0, 2, -1, 1, Q("5.75 in")),
    Sketcher.Constraint("DistanceY", 1, 2, -1, 1, Q("5.75 in")),
    Sketcher.Constraint("Distance", 3, Q("18.65084 mm")),
    Sketcher.Constraint("DistanceY", 1, 2, 1, 1, Q("43.227726 mm")),
    Sketcher.Constraint("DistanceX", 2, 2, -1, 1, Q("104.752609 mm")),
])
pad17 = body17.newObject("PartDesign::Pad", "Pad016")
pad17.Profile = sketch17
pad17.Length = Q("1 in")
body18 = doc.addObject("PartDesign::Body", "Body017")

# Sketch on XZ plane
sketch18 = body18.newObject("Sketcher::SketchObject", "Sketch017")
sketch18.AttachmentSupport = (doc.getObject("XZ_Plane017"), [""])
sketch18.MapMode = "FlatFace"
sketch18.addGeometry([
    Part.LineSegment(V(-105, -60, 0), V(-146, -146, 0)),
    Part.LineSegment(V(-146, -146, 0), V(-98, -146, 0)),
    Part.LineSegment(V(-98, -146, 0), V(-66, -78, 0)),
    Part.LineSegment(V(-66, -78, 0), V(-105, -60, 0)),
], False)
sketch18.addConstraint([
    Sketcher.Constraint("Coincident", 0, 2, 1, 1),
    Sketcher.Constraint("Coincident", 1, 2, 2, 1),
    Sketcher.Constraint("Coincident", 2, 2, 3, 1),
    Sketcher.Constraint("Coincident", 3, 2, 0, 1),
    Sketcher.Constraint("Horizontal", 1),
    Sketcher.Constraint("Parallel", 0, 2),
    Sketcher.Constraint("Perpendicular", 2, 3),
    Sketcher.Constraint("DistanceX", 0, 2, -1, 1, Q("5.75 in")),
    Sketcher.Constraint("DistanceY", 0, 2, -1, 1, Q("5.75 in")),
    Sketcher.Constraint("Distance", 2, Q("75.051518 mm")),
    Sketcher.Constraint("DistanceX", 1, 1, 1, 2, Q("47.895872 mm")),
    Sketcher.Constraint("DistanceX", 3, 2, -1, 1, Q("104.752609 mm")),
])
pad18 = body18.newObject("PartDesign::Pad", "Pad017")
pad18.Profile = sketch18
pad18.Length = Q("1 in")
body19 = doc.addObject("PartDesign::Body", "Body018")

# Sketch on XZ plane
sketch19 = body19.newObject("Sketcher::SketchObject", "Sketch018")
sketch19.AttachmentSupport = (doc.getObject("XZ_Plane018"), [""])
sketch19.MapMode = "FlatFace"
sketch19.addGeometry([
    Part.LineSegment(V(-66, -78, 0), V(-98, -146, 0)),
    Part.LineSegment(V(-98, -146, 0), V(-63, -146, 0)),
    Part.LineSegment(V(-63, -146, 0), V(-37, -92, 0)),
    Part.LineSegment(V(-37, -92, 0), V(-66, -78, 0)),
], False)
sketch19.addConstraint([
    Sketcher.Constraint("Coincident", 0, 2, 1, 1),
    Sketcher.Constraint("Coincident", 1, 2, 2, 1),
    Sketcher.Constraint("Coincident", 2, 2, 3, 1),
    Sketcher.Constraint("Coincident", 3, 2, 0, 1),
    Sketcher.Constraint("Horizontal", 1),
    Sketcher.Constraint("Parallel", 0, 2),
    Sketcher.Constraint("Perpendicular", 2, 3),
    Sketcher.Constraint("DistanceY", 0, 2, -1, 1, Q("5.75 in")),
    Sketcher.Constraint("Distance", 3, Q("32.062099 mm")),
    Sketcher.Constraint("Distance", 0, Q("75.051518 mm")),
    Sketcher.Constraint("Distance", 2, Q("59.717471 mm")),
    Sketcher.Constraint("DistanceX", 2, 2, -1, 1, Q("36.848421 mm")),
])
pad19 = body19.newObject("PartDesign::Pad", "Pad018")
pad19.Profile = sketch19
pad19.Length = Q("1 in")
body20 = doc.addObject("PartDesign::Body", "Body019")

# Sketch on XZ plane
sketch20 = body20.newObject("Sketcher::SketchObject", "Sketch019")
sketch20.AttachmentSupport = (doc.getObject("XZ_Plane019"), [""])
sketch20.MapMode = "FlatFace"
sketch20.addGeometry([
    Part.LineSegment(V(6, -107, 0), V(0, -110, 0)),  # 0
    Part.LineSegment(V(0, -110, 0), V(-6, -107, 0)),  # 1
    Part.LineSegment(V(-6, -107, 0), V(-25, -146, 0)),  # 2
    Part.LineSegment(V(-25, -146, 0), V(25, -146, 0)),  # 3
    Part.LineSegment(V(25, -146, 0), V(6, -107, 0)),  # 4
], False)
sketch20.addConstraint([
    Sketcher.Constraint("Coincident", 0, 2, 1, 1),
    Sketcher.Constraint("Coincident", 1, 2, 2, 1),
    Sketcher.Constraint("Coincident", 2, 2, 3, 1),
    Sketcher.Constraint("Coincident", 3, 2, 4, 1),
    Sketcher.Constraint("Coincident", 4, 2, 0, 1),
    Sketcher.Constraint("Horizontal", 3),
    Sketcher.Constraint("Symmetric", 1, 2, 4, 2, -2),
    Sketcher.Constraint("PointOnObject", 0, 2, -2),
    Sketcher.Constraint("Perpendicular", 1, 2),
    Sketcher.Constraint("Perpendicular", 0, 4),
    Sketcher.Constraint("DistanceY", 2, 2, -1, 1, Q("5.75 in")),
    Sketcher.Constraint("DistanceX", 3, 1, 3, 2, Q("50.304946 mm")),
    Sketcher.Constraint("DistanceX", 1, 2, -1, 1, Q("6.360621 mm")),
    Sketcher.Constraint("Distance", 0, Q("7.050637 mm")),
])
pad20 = body20.newObject("PartDesign::Pad", "Pad019")
pad20.Profile = sketch20
pad20.Length = Q("1 in")
body21 = doc.addObject("PartDesign::Body", "Body020")

# Sketch on XZ plane
sketch21 = body21.newObject("Sketcher::SketchObject", "Sketch020")
sketch21.AttachmentSupport = (doc.getObject("XZ_Plane020"), [""])
sketch21.MapMode = "FlatFace"
sketch21.addGeometry([
    Part.LineSegment(V(66, -78, 0), V(37, -92, 0)),
    Part.LineSegment(V(37, -92, 0), V(63, -146, 0)),
    Part.LineSegment(V(63, -146, 0), V(98, -146, 0)),
    Part.LineSegment(V(98, -146, 0), V(66, -78, 0)),
], False)
sketch21.addConstraint([
    Sketcher.Constraint("Coincident", 0, 2, 1, 1),
    Sketcher.Constraint("Coincident", 1, 2, 2, 1),
    Sketcher.Constraint("Coincident", 2, 2, 3, 1),
    Sketcher.Constraint("Coincident", 3, 2, 0, 1),
    Sketcher.Constraint("Horizontal", 2),
    Sketcher.Constraint("Perpendicular", 0, 1),
    Sketcher.Constraint("Parallel", 1, 3),
    Sketcher.Constraint("DistanceY", 1, 2, -1, 1, Q("5.75 in")),
    Sketcher.Constraint("Distance", 0, Q("32.062099 mm")),
    Sketcher.Constraint("Distance", 1, Q("59.717471 mm")),
    Sketcher.Constraint("Distance", 3, Q("75.051518 mm")),
    Sketcher.Constraint("DistanceX", -1, 1, 0, 2, Q("36.848421 mm")),
])
pad21 = body21.newObject("PartDesign::Pad", "Pad020")
pad21.Profile = sketch21
pad21.Length = Q("1 in")
body22 = doc.addObject("PartDesign::Body", "Body021")

# Sketch on XZ plane
sketch22 = body22.newObject("Sketcher::SketchObject", "Sketch021")
sketch22.AttachmentSupport = (doc.getObject("XZ_Plane021"), [""])
sketch22.MapMode = "FlatFace"
sketch22.addGeometry([
    Part.LineSegment(V(146, -146, 0), V(146, -103, 0)),
    Part.LineSegment(V(146, -103, 0), V(122, -52, 0)),
    Part.LineSegment(V(122, -52, 0), V(105, -60, 0)),
    Part.LineSegment(V(105, -60, 0), V(146, -146, 0)),
], False)
sketch22.addConstraint([
    Sketcher.Constraint("Coincident", 0, 2, 1, 1),
    Sketcher.Constraint("Coincident", 1, 2, 2, 1),
    Sketcher.Constraint("Coincident", 2, 2, 3, 1),
    Sketcher.Constraint("Coincident", 3, 2, 0, 1),
    Sketcher.Constraint("Vertical", 0),
    Sketcher.Constraint("Perpendicular", 1, 2),
    Sketcher.Constraint("Perpendicular", 2, 3),
    Sketcher.Constraint("DistanceX", -1, 1, 0, 2, Q("5.75 in")),
    Sketcher.Constraint("DistanceY", 3, 2, -1, 1, Q("5.75 in")),
    Sketcher.Constraint("Distance", 2, Q("18.65084 mm")),
    Sketcher.Constraint("DistanceY", 0, 1, 0, 2, Q("43.227726 mm")),
    Sketcher.Constraint("DistanceX", -1, 1, 1, 2, Q("121.57817 mm")),
])
pad22 = body22.newObject("PartDesign::Pad", "Pad021")
pad22.Profile = sketch22
pad22.Length = Q("1 in")
body23 = doc.addObject("PartDesign::Body", "Body022")

# Sketch on XZ plane
sketch23 = body23.newObject("Sketcher::SketchObject", "Sketch022")
sketch23.AttachmentSupport = (doc.getObject("XZ_Plane022"), [""])
sketch23.MapMode = "FlatFace"
sketch23.addGeometry([
    Part.LineSegment(V(-25, -146, 0), V(-6, -107, 0)),
    Part.LineSegment(V(-6, -107, 0), V(-37, -92, 0)),
    Part.LineSegment(V(-37, -92, 0), V(-63, -146, 0)),
    Part.LineSegment(V(-63, -146, 0), V(-25, -146, 0)),
], False)
sketch23.addConstraint([
    Sketcher.Constraint("Coincident", 0, 2, 1, 1),
    Sketcher.Constraint("Coincident", 1, 2, 2, 1),
    Sketcher.Constraint("Coincident", 2, 2, 3, 1),
    Sketcher.Constraint("Coincident", 3, 2, 0, 1),
    Sketcher.Constraint("Horizontal", 3),
    Sketcher.Constraint("Perpendicular", 0, 1),
    Sketcher.Constraint("Perpendicular", 1, 2),
    Sketcher.Constraint("DistanceY", 2, 2, -1, 1, Q("5.75 in")),
    Sketcher.Constraint("DistanceX", 3, 1, 3, 2, Q("37.46138 mm")),
    Sketcher.Constraint("DistanceX", 1, 2, 0, 2, Q("30.4878 mm")),
    Sketcher.Constraint("Distance", 2, Q("59.717471 mm")),
    Sketcher.Constraint("DistanceX", 0, 2, -1, 1, Q("6.360621 mm")),
])
pad23 = body23.newObject("PartDesign::Pad", "Pad022")
pad23.Profile = sketch23
pad23.Length = Q("1 in")
body24 = doc.addObject("PartDesign::Body", "Body023")

# Sketch on XZ plane
sketch24 = body24.newObject("Sketcher::SketchObject", "Sketch023")
sketch24.AttachmentSupport = (doc.getObject("XZ_Plane023"), [""])
sketch24.MapMode = "FlatFace"
sketch24.addGeometry([
    Part.LineSegment(V(37, -92, 0), V(6, -107, 0)),
    Part.LineSegment(V(6, -107, 0), V(25, -146, 0)),
    Part.LineSegment(V(25, -146, 0), V(63, -146, 0)),
    Part.LineSegment(V(63, -146, 0), V(37, -92, 0)),
], False)
sketch24.addConstraint([
    Sketcher.Constraint("Coincident", 0, 2, 1, 1),
    Sketcher.Constraint("Coincident", 1, 2, 2, 1),
    Sketcher.Constraint("Coincident", 2, 2, 3, 1),
    Sketcher.Constraint("Coincident", 3, 2, 0, 1),
    Sketcher.Constraint("Horizontal", 2),
    Sketcher.Constraint("Perpendicular", 0, 1),
    Sketcher.Constraint("Parallel", 1, 3),
    Sketcher.Constraint("DistanceY", 1, 2, -1, 1, Q("5.75 in")),
    Sketcher.Constraint("DistanceX", 2, 1, 2, 2, Q("37.46138 mm")),
    Sketcher.Constraint("DistanceX", 0, 2, 3, 2, Q("30.4878 mm")),
    Sketcher.Constraint("Distance", 3, Q("59.717471 mm")),
    Sketcher.Constraint("DistanceX", -1, 1, 0, 2, Q("6.360621 mm")),
])
pad24 = body24.newObject("PartDesign::Pad", "Pad023")
pad24.Profile = sketch24
pad24.Length = Q("1 in")
body25 = doc.addObject("PartDesign::Body", "Body024")

# Sketch on XZ plane
sketch25 = body25.newObject("Sketcher::SketchObject", "Sketch024")
sketch25.AttachmentSupport = (doc.getObject("XZ_Plane024"), [""])
sketch25.MapMode = "FlatFace"
sketch25.addGeometry([
    Part.LineSegment(V(98, -146, 0), V(146, -146, 0)),
    Part.LineSegment(V(146, -146, 0), V(105, -60, 0)),
    Part.LineSegment(V(105, -60, 0), V(66, -78, 0)),
    Part.LineSegment(V(66, -78, 0), V(98, -146, 0)),
], False)
sketch25.addConstraint([
    Sketcher.Constraint("Coincident", 0, 2, 1, 1),
    Sketcher.Constraint("Coincident", 1, 2, 2, 1),
    Sketcher.Constraint("Coincident", 2, 2, 3, 1),
    Sketcher.Constraint("Coincident", 3, 2, 0, 1),
    Sketcher.Constraint("Horizontal", 0),
    Sketcher.Constraint("Perpendicular", 1, 2),
    Sketcher.Constraint("Perpendicular", 2, 3),
    Sketcher.Constraint("DistanceX", -1, 1, 0, 2, Q("5.75 in")),
    Sketcher.Constraint("DistanceY", 0, 2, -1, 1, Q("5.75 in")),
    Sketcher.Constraint("Distance", 3, Q("75.051518 mm")),
    Sketcher.Constraint("DistanceX", 0, 1, 0, 2, Q("47.895872 mm")),
    Sketcher.Constraint("DistanceX", -1, 1, 1, 2, Q("104.752609 mm")),
])
pad25 = body25.newObject("PartDesign::Pad", "Pad024")
pad25.Profile = sketch25
pad25.Length = Q("1 in")
body26 = doc.addObject("PartDesign::Body", "Body025")

# Sketch on XZ plane
sketch26 = body26.newObject("Sketcher::SketchObject", "Sketch025")
sketch26.AttachmentSupport = (doc.getObject("XZ_Plane025"), [""])
sketch26.MapMode = "FlatFace"
sketch26.addGeometry([
    Part.LineSegment(V(146, -103, 0), V(146, -40, 0)),
    Part.LineSegment(V(146, -40, 0), V(122, -52, 0)),
    Part.LineSegment(V(122, -52, 0), V(146, -103, 0)),
], False)
sketch26.addConstraint([
    Sketcher.Constraint("Coincident", 0, 2, 1, 1),
    Sketcher.Constraint("Coincident", 1, 2, 2, 1),
    Sketcher.Constraint("Coincident", 2, 2, 0, 1),
    Sketcher.Constraint("Vertical", 0),
    Sketcher.Constraint("Perpendicular", 1, 2),
    Sketcher.Constraint("DistanceX", -1, 1, 0, 2, Q("5.75 in")),
    Sketcher.Constraint("DistanceY", 0, 1, 0, 2, Q("62.872291 mm")),
    Sketcher.Constraint("DistanceX", -1, 1, 1, 2, Q("121.57817 mm")),
    Sketcher.Constraint("DistanceY", 0, 2, -1, 1, Q("39.949983 mm")),
])
pad26 = body26.newObject("PartDesign::Pad", "Pad025")
pad26.Profile = sketch26
pad26.Length = Q("1 in")

doc.recompute()
